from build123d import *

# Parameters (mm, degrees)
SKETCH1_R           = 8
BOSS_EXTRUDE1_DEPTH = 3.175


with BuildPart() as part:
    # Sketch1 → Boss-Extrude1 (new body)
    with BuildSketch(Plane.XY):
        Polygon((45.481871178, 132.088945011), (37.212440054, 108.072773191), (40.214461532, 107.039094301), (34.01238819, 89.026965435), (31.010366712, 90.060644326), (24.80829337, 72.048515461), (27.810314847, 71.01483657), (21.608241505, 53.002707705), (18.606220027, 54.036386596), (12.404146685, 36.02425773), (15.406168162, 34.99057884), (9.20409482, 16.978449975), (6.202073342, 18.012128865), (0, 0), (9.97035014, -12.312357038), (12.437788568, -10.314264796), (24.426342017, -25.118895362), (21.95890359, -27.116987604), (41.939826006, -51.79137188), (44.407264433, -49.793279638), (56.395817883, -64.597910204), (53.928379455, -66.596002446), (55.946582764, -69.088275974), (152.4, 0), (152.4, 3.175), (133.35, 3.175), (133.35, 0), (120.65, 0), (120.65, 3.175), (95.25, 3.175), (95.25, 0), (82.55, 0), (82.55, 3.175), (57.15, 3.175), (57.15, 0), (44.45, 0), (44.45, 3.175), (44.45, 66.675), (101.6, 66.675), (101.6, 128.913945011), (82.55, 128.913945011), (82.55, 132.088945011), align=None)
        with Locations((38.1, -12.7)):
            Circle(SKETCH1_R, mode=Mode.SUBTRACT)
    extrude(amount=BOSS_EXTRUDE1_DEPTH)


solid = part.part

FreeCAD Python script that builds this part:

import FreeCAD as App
import Part
import Sketcher
Q = App.Units.Quantity


def add_polygon(sketch, points):
    """Adds a closed chain of lines whose ends are joined by coincident constraints."""
    first, n = sketch.GeometryCount, len(points)
    for a, b in zip(points, points[1:] + points[:1]):
        sketch.addGeometry(Part.LineSegment(App.Vector(*a, 0), App.Vector(*b, 0)), False)
    for i in range(n):
        sketch.addConstraint(Sketcher.Constraint("Coincident", first + i, 2, first + (i + 1) % n, 1))

doc = App.newDocument("Part")
body = doc.addObject("PartDesign::Body", "Body")

# Sketch on XY plane
sketch1 = body.newObject("Sketcher::SketchObject", "Sketch")
sketch1.AttachmentSupport = (doc.getObject("XY_Plane"), [""])
sketch1.MapMode = "FlatFace"
add_polygon(sketch1, [(45.481871, 132.088945), (37.21244, 108.072773), (40.214462, 107.039094), (34.012388, 89.026965), (31.010367, 90.060644), (24.808293, 72.048515), (27.810315, 71.014837), (21.608242, 53.002708), (18.60622, 54.036387), (12.404147, 36.024258), (15.406168, 34.990579), (9.204095, 16.97845), (6.202073, 18.012129), (0, 0), (9.97035, -12.312357), (12.437789, -10.314265), (24.426342, -25.118895), (21.958904, -27.116988), (41.939826, -51.791372), (44.407264, -49.79328), (56.395818, -64.59791), (53.928379, -66.596002), (55.946583, -69.088276), (152.4, 0), (152.4, 3.175), (133.35, 3.175), (133.35, 0), (120.65, 0), (120.65, 3.175), (95.25, 3.175), (95.25, 0), (82.55, 0), (82.55, 3.175), (57.15, 3.175), (57.15, 0), (44.45, 0), (44.45, 66.675), (101.6, 66.675), (101.6, 128.913945), (82.55, 128.913945), (82.55, 132.088945)])  # lines 0-40
sketch1.addGeometry(Part.Circle(App.Vector(38.1, -12.7, 0), App.Vector(0, 0, 1), 8), False)  # 41
sketch1.addConstraint([
    Sketcher.Constraint("Vertical", 23),
    Sketcher.Constraint("Horizontal", 24),
    Sketcher.Constraint("Vertical", 25),
    Sketcher.Constraint("Horizontal", 26),
    Sketcher.Constraint("Vertical", 27),
    Sketcher.Constraint("Horizontal", 28),
    Sketcher.Constraint("Vertical", 29),
    Sketcher.Constraint("Horizontal", 30),
    Sketcher.Constraint("Vertical", 31),
    Sketcher.Constraint("Horizontal", 32),
    Sketcher.Constraint("Vertical", 33),
    Sketcher.Constraint("Horizontal", 34),
    Sketcher.Constraint("Vertical", 35),
    Sketcher.Constraint("Horizontal", 36),
    Sketcher.Constraint("Vertical", 37),
    Sketcher.Constraint("Horizontal", 38),
    Sketcher.Constraint("Vertical", 39),
    Sketcher.Constraint("Horizontal", 40),
    Sketcher.Constraint("Coincident", 12, 2, -1, 1),
    Sketcher.Constraint("PointOnObject", 22, 2, -1),
    Sketcher.Constraint("PointOnObject", 25, 2, -1),
    Sketcher.Constraint("PointOnObject", 29, 2, -1),
    Sketcher.Constraint("PointOnObject", 33, 2, -1),
    Sketcher.Constraint("Perpendicular", 0, 1),
    Sketcher.Constraint("Perpendicular", 1, 2),
    Sketcher.Constraint("Perpendicular", 2, 3),
    Sketcher.Constraint("Perpendicular", 3, 4),
    Sketcher.Constraint("Perpendicular", 4, 5),
    Sketcher.Constraint("Perpendicular", 5, 6),
    Sketcher.Constraint("Perpendicular", 6, 7),
    Sketcher.Constraint("Perpendicular", 7, 8),
    Sketcher.Constraint("Perpendicular", 8, 9),
    Sketcher.Constraint("Perpendicular", 9, 10),
    Sketcher.Constraint("Perpendicular", 10, 11),
    Sketcher.Constraint("Perpendicular", 11, 12),
    Sketcher.Constraint("Perpendicular", 13, 14),
    Sketcher.Constraint("Perpendicular", 14, 15),
    Sketcher.Constraint("Perpendicular", 15, 16),
    Sketcher.Constraint("Perpendicular", 16, 17),
    Sketcher.Constraint("Perpendicular", 17, 18),
    Sketcher.Constraint("Perpendicular", 18, 19),
    Sketcher.Constraint("Perpendicular", 19, 20),
    Sketcher.Constraint("Perpendicular", 20, 21),
    Sketcher.Constraint("Horizontal", 24, 2, 27, 2),
    Sketcher.Constraint("Horizontal", 28, 2, 31, 2),
    Sketcher.Constraint("Vertical", 31, 2, 38, 2),
    Sketcher.Constraint("Equal", 26, 30),
    Sketcher.Constraint("Equal", 28, 32),
    Sketcher.Constraint("Equal", 30, 34),
    Sketcher.Constraint("Equal", 24, 38),
    Sketcher.Constraint("Equal", 33, 39),
    Sketcher.Constraint("Equal", 1, 3),
    Sketcher.Constraint("Equal", 2, 4),
    Sketcher.Constraint("Equal", 3, 5),
    Sketcher.Constraint("Equal", 4, 6),
    Sketcher.Constraint("Equal", 5, 7),
    Sketcher.Constraint("Equal", 6, 8),
    Sketcher.Constraint("Equal", 7, 9),
    Sketcher.Constraint("Equal", 8, 10),
    Sketcher.Constraint("Equal", 9, 11),
    Sketcher.Constraint("Equal", 10, 12),
    Sketcher.Constraint("Equal", 11, 14),
    Sketcher.Constraint("Equal", 12, 15),
    Sketcher.Constraint("Equal", 14, 16),
    Sketcher.Constraint("Equal", 16, 18),
    Sketcher.Constraint("Equal", 15, 19),
    Sketcher.Constraint("Equal", 18, 20),
    Sketcher.Constraint("DistanceX", 28, 2, 28, 1, Q("1 in")),
    Sketcher.Constraint("Distance", 0, Q("1 in")),
    Sketcher.Constraint("DistanceX", 26, 2, 26, 1, Q("0.5 in")),
    Sketcher.Constraint("DistanceX", -1, 1, 22, 2, Q("6 in")),
    Sketcher.Constraint("Angle", 0, Q("-109 deg")),
    Sketcher.Constraint("Angle", 13, Q("-51 deg")),
    Sketcher.Constraint("DistanceX", 24, 2, 24, 1, Q("0.75 in")),
    Sketcher.Constraint("DistanceX", -1, 1, 41, 3, Q("1.5 in")),
    Sketcher.Constraint("DistanceY", 41, 3, -1, 1, Q("0.5 in")),
    Sketcher.Constraint("DistanceY", 28, 2, 36, 2, Q("2.5 in")),
    Sketcher.Constraint("Distance", 2, Q("0.75 in")),
    Sketcher.Constraint("Distance", 17, Q("1.25 in")),
    Sketcher.Constraint("Diameter", 41, 16.0),
    Sketcher.Constraint("DistanceY", 23, 1, 23, 2, Q("0.125 in")),
    Sketcher.Constraint("Distance", 1, Q("0.125 in")),
    Sketcher.Constraint("DistanceX", -1, 1, 13, 2, 9.97035),
    Sketcher.Constraint("DistanceX", 18, 2, 21, 2, 11.539318),
])
pad1 = body.newObject("PartDesign::Pad", "Pad")
pad1.Profile = sketch1
pad1.Length = Q("0.125 in")

doc.recompute()
